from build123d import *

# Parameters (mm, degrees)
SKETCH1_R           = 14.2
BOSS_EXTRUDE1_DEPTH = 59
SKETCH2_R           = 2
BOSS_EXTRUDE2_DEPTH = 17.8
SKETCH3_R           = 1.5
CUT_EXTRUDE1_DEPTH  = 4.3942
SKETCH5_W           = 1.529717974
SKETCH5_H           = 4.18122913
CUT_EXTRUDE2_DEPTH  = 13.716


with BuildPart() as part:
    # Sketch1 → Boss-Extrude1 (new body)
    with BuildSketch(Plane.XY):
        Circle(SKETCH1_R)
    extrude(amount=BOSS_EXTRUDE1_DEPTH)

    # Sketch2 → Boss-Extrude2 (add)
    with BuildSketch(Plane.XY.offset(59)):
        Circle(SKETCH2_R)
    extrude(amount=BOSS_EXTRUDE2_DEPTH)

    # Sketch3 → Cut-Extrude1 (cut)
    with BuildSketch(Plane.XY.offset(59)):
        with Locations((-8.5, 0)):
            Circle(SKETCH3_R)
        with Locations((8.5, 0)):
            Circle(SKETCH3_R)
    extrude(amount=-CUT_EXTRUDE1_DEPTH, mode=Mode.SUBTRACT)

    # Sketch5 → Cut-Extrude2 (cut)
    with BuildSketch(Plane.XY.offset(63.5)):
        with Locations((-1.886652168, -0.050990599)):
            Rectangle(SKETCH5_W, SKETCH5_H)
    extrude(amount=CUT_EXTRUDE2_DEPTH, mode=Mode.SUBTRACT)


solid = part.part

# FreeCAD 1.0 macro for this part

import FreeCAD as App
import Part
import Sketcher
from FreeCAD import Vector
Q = App.Units.Quantity


def add_polygon(sketch, points):
    """Adds a closed chain of lines whose ends are joined by coincident constraints."""
    first, n = sketch.GeometryCount, len(points)
    for a, b in zip(points, points[1:] + points[:1]):
        sketch.addGeometry(Part.LineSegment(App.Vector(*a, 0), App.Vector(*b, 0)), False)
    for i in range(n):
        sketch.addConstraint(Sketcher.Constraint("Coincident", first + i, 2, first + (i + 1) % n, 1))

doc = App.newDocument("Part")
body = doc.addObject("PartDesign::Body", "Body")

# Sketch on XY plane
sketch1 = doc.addObject("Sketcher::SketchObject", "Sketch")
body.addObject(sketch1)
sketch1.AttachmentSupport = (doc.XY_Plane, [""])
sketch1.MapMode = "FlatFace"
sketch1.addGeometry(Part.Circle(Vector(0, 0, 0), Vector(0, 0, 1), 14), False)
sketch1.addConstraint([
    Sketcher.Constraint("Coincident", 0, 3, -1, 1),
    Sketcher.Constraint("Diameter", 0, Q("28.4 mm")),
])
pad1 = doc.addObject("PartDesign::Pad", "Pad")
body.addObject(pad1)
pad1.Profile = sketch1
pad1.Length = 59

# Sketch on XY plane
sketch2 = doc.addObject("Sketcher::SketchObject", "Sketch001")
body.addObject(sketch2)
sketch2.AttachmentSupport = (doc.XY_Plane, [""])
sketch2.MapMode = "FlatFace"
sketch2.AttachmentOffset = App.Placement(Vector(0, 0, 59), App.Rotation())
sketch2.addGeometry(Part.Circle(Vector(0, 0, 0), Vector(0, 0, 1), 2), False)
sketch2.addConstraint([
    Sketcher.Constraint("Coincident", 0, 3, -1, 1),
    Sketcher.Constraint("Diameter", 0, Q("4 mm")),
])
pad2 = doc.addObject("PartDesign::Pad", "Pad001")
body.addObject(pad2)
pad2.Profile = sketch2
pad2.Length = 17.8

# Sketch on XY plane
sketch3 = doc.addObject("Sketcher::SketchObject", "Sketch002")
body.addObject(sketch3)
sketch3.AttachmentSupport = (doc.XY_Plane, [""])
sketch3.MapMode = "FlatFace"
sketch3.AttachmentOffset = App.Placement(Vector(0, 0, 59), App.Rotation())
sketch3.addGeometry([
    Part.Circle(Vector(-8.5, 0, 0), Vector(0, 0, 1), 1.5),
    Part.Circle(Vector(8.5, 0, 0), Vector(0, 0, 1), 1.5),
], False)
sketch3.addConstraint([
    Sketcher.Constraint("Equal", 0, 1),
    Sketcher.Constraint("Symmetric", 0, 3, 1, 3, -1, 1),
    Sketcher.Constraint("PointOnObject", 0, 3, -1),
    Sketcher.Constraint("Diameter", 0, Q("3 mm")),
    Sketcher.Constraint("DistanceX", 0, 3, 1, 3, Q("17 mm")),
])
pocket1 = doc.addObject("PartDesign::Pocket", "Pocket")
body.addObject(pocket1)
pocket1.Profile = sketch3
pocket1.Length = 4.3942

# Sketch on XY plane
sketch4 = doc.addObject("Sketcher::SketchObject", "Sketch003")
body.addObject(sketch4)
sketch4.AttachmentSupport = (doc.XY_Plane, [""])
sketch4.MapMode = "FlatFace"
sketch4.AttachmentOffset = App.Placement(Vector(0, 0, 63.5), App.Rotation())
add_polygon(sketch4, [(-2.7, 2), (-2.7, -2.1), (-1.1, -2.1), (-1.1, 2)])  # lines 0-3
sketch4.addConstraint([
    Sketcher.Constraint("Vertical", 0),
    Sketcher.Constraint("Horizontal", 1),
    Sketcher.Constraint("Vertical", 2),
    Sketcher.Constraint("Horizontal", 3),
    Sketcher.Constraint("DistanceY", 0, 2, 0, 1, Q("4.181229 mm")),
    Sketcher.Constraint("DistanceX", 1, 1, 1, 2, Q("1.529718 mm")),
    Sketcher.Constraint("DistanceX", 0, 2, -1, 1, Q("2.651511 mm")),
    Sketcher.Constraint("DistanceY", 0, 2, -1, 1, Q("2.141605 mm")),
])
pocket2 = doc.addObject("PartDesign::Pocket", "Pocket001")
body.addObject(pocket2)
pocket2.Profile = sketch4
pocket2.Length = 13.716
pocket2.Reversed = True

doc.recompute()
